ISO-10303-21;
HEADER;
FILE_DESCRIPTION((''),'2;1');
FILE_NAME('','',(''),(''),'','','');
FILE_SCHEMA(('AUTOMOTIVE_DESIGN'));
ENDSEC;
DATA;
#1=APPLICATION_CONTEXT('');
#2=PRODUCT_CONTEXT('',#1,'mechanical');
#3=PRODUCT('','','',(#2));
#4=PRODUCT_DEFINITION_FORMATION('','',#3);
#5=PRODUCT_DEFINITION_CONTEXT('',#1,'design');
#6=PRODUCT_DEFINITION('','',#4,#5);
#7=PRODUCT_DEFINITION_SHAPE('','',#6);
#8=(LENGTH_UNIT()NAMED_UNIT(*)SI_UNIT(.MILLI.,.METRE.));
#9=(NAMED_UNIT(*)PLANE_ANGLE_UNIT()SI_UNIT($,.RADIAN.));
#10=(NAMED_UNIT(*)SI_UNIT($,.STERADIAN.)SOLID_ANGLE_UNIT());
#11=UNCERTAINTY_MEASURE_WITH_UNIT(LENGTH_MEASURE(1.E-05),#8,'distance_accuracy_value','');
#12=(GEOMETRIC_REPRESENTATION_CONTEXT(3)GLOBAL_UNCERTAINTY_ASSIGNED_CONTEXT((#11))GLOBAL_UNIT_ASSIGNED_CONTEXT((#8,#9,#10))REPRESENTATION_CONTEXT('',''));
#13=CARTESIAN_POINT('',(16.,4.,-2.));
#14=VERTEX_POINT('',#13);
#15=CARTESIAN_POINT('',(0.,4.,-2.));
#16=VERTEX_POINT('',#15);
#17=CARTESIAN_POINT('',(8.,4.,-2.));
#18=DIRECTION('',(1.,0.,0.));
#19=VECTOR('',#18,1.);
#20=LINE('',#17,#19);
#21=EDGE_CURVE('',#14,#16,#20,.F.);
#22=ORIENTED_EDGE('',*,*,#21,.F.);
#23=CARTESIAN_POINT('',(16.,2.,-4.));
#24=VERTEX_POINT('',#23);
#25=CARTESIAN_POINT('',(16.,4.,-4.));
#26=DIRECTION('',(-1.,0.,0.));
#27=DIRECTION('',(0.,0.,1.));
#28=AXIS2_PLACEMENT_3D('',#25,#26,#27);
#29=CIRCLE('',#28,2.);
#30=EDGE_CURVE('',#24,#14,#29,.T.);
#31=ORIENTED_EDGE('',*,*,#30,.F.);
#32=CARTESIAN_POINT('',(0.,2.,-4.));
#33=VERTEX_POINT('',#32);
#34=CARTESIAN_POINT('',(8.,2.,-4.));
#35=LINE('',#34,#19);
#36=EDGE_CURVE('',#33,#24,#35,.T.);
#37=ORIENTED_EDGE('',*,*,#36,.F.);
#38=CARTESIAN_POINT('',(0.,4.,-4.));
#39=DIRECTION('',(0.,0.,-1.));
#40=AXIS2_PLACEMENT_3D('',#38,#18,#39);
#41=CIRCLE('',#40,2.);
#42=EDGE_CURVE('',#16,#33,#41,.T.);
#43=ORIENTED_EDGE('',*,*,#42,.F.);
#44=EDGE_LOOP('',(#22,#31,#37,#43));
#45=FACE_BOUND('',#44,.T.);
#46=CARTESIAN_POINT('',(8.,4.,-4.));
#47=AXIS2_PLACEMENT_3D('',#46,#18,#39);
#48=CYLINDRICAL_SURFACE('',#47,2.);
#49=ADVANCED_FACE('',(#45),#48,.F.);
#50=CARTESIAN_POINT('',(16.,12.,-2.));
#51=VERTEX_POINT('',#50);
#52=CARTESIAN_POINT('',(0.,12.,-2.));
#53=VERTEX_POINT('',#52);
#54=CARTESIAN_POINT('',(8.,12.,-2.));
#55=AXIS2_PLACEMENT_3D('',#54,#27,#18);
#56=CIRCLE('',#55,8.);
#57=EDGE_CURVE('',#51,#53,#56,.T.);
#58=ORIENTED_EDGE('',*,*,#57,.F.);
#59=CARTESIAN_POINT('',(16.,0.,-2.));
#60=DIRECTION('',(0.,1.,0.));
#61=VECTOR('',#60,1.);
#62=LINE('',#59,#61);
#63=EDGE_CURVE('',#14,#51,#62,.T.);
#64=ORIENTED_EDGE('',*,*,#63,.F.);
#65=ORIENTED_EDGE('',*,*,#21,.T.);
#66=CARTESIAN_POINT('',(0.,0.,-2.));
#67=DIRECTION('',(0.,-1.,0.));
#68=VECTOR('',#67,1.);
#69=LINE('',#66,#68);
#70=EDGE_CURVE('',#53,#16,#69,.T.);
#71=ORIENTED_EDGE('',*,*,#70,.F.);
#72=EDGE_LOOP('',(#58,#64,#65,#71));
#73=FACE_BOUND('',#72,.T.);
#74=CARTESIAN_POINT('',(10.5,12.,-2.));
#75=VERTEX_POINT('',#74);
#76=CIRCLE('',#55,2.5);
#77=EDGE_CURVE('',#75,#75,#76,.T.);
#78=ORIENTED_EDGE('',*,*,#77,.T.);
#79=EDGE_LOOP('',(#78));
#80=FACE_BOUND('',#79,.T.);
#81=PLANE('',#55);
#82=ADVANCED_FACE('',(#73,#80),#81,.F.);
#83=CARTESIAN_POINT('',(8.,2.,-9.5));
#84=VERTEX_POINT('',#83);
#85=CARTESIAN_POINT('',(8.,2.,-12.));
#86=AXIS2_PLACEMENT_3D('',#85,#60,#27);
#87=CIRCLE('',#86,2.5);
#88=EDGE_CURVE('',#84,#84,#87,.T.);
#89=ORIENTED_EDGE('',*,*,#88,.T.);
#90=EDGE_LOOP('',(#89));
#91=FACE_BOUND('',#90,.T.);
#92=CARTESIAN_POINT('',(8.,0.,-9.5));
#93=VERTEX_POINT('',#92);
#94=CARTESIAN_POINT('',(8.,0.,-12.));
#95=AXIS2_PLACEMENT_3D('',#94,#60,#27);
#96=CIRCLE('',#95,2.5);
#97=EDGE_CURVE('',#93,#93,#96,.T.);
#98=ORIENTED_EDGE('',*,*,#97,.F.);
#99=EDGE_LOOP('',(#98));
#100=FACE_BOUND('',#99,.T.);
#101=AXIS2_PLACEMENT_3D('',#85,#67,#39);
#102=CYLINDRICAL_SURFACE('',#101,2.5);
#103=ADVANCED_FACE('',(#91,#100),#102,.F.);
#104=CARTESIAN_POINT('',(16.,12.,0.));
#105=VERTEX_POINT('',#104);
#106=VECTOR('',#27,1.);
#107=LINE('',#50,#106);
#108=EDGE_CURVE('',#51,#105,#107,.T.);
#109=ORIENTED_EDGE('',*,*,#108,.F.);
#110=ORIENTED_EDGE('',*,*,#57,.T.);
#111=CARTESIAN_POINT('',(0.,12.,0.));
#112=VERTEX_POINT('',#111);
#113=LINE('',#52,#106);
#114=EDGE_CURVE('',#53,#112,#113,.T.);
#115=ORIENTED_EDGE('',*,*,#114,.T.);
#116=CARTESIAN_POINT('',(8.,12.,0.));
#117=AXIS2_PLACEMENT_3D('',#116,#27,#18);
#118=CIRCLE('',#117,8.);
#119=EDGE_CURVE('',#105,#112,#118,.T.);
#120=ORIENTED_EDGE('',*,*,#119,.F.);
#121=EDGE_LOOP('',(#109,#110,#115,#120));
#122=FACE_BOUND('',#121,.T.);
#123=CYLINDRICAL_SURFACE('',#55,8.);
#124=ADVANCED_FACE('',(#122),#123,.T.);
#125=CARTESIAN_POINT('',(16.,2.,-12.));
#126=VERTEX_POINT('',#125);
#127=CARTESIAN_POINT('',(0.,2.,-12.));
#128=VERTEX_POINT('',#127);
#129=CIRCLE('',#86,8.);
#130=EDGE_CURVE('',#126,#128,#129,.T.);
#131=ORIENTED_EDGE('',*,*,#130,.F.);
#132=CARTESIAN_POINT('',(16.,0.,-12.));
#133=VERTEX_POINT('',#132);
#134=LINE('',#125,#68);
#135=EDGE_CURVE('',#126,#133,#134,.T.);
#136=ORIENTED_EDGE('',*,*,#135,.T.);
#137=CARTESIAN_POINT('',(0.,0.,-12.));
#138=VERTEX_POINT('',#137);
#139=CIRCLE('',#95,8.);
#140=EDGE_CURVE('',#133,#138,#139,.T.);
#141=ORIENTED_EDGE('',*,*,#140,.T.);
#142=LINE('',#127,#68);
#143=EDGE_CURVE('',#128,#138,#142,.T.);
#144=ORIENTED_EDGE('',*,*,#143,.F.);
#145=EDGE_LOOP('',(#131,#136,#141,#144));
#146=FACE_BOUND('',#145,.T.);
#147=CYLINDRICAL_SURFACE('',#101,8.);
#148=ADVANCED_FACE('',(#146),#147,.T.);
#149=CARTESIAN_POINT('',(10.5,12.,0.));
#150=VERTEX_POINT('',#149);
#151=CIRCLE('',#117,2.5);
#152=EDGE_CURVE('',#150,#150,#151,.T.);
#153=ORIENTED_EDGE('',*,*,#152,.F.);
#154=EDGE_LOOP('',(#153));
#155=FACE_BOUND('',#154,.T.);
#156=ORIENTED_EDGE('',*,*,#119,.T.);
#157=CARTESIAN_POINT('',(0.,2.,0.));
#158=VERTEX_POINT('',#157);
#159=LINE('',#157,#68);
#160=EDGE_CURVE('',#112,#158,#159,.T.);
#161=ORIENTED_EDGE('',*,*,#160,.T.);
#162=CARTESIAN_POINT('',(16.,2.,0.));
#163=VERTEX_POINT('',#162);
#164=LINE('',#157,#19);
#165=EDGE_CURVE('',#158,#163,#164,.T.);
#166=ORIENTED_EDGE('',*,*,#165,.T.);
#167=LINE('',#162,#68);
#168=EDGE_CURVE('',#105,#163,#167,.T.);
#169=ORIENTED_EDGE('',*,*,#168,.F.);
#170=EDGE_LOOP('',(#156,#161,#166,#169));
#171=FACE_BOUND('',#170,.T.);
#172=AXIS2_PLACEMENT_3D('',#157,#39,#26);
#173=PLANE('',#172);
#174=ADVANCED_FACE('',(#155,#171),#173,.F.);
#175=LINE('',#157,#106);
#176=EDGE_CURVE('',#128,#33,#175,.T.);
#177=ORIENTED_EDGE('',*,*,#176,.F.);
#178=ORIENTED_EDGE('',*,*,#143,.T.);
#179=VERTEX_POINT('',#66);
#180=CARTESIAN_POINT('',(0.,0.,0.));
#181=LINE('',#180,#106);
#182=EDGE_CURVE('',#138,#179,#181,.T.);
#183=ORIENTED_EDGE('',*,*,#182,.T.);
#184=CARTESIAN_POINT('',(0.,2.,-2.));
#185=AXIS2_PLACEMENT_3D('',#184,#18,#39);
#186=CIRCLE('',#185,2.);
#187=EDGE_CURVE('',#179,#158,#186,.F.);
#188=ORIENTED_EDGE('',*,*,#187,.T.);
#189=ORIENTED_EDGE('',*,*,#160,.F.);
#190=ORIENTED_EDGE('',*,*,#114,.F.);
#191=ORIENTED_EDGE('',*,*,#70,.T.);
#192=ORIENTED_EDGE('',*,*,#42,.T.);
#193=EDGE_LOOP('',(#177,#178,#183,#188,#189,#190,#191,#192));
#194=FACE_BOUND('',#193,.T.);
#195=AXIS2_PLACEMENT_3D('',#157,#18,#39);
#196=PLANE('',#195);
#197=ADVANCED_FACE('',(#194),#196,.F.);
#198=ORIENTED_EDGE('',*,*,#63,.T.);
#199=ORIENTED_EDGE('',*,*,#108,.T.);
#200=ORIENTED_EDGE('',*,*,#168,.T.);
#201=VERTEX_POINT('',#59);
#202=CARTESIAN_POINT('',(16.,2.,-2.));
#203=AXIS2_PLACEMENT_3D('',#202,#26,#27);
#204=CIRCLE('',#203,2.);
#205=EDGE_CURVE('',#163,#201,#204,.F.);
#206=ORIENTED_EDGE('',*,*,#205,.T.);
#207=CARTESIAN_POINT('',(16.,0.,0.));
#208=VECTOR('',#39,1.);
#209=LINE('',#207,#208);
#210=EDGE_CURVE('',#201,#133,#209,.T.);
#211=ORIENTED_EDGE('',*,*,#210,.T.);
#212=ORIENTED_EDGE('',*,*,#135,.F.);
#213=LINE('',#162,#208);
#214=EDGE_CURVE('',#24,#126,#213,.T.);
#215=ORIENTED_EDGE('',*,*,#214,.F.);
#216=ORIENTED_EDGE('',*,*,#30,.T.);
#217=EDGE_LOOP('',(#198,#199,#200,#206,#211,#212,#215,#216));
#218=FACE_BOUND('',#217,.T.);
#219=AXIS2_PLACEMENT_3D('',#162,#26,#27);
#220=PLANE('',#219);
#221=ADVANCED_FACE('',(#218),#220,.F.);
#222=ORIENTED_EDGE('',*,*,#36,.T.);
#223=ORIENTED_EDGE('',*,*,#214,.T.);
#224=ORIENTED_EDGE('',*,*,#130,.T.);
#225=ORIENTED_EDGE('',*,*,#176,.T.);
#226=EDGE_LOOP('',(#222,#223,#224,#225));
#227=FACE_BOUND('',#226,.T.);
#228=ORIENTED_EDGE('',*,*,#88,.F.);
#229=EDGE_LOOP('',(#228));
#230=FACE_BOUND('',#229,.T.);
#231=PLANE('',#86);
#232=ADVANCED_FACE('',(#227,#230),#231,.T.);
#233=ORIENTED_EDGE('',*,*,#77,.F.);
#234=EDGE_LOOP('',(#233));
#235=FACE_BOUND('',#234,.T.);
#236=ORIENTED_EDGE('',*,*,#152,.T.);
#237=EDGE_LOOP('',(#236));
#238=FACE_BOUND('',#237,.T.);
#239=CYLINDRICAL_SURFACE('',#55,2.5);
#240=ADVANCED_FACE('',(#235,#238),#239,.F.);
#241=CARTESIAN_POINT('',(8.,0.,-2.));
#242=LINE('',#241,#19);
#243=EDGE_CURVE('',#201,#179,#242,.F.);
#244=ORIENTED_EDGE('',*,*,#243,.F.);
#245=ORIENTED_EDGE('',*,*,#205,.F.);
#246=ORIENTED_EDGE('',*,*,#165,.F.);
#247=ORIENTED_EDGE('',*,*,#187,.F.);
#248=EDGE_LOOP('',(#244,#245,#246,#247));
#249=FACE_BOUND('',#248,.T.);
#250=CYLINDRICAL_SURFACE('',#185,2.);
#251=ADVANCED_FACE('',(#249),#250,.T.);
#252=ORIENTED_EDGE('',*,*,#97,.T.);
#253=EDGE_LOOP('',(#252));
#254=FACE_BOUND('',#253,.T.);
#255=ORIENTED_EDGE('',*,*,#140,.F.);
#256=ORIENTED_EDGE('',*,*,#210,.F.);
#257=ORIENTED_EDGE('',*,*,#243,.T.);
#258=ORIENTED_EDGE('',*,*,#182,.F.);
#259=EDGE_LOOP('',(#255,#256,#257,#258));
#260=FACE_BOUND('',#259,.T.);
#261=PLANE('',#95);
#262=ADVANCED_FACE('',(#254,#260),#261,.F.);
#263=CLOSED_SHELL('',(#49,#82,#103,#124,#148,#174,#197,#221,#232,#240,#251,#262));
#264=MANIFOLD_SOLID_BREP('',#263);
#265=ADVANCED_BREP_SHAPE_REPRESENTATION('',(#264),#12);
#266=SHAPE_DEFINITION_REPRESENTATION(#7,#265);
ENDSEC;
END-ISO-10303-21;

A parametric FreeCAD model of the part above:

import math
import FreeCAD as App
import Part
import Sketcher
from FreeCAD import Vector
Q = App.Units.Quantity


def edges_at(feature, points):
    """Names of the edges that pass closest to the given points."""
    edges = feature.Shape.Edges
    near = lambda p: min(range(len(edges)), key=lambda i: edges[i].distToShape(Part.Vertex(*p))[0])
    return sorted({f"Edge{near(p) + 1}" for p in points})

doc = App.newDocument("Part")
params = doc.addObject("Spreadsheet::Sheet", "Params")
for row, (alias, value) in enumerate([
    ("sketch1_diameter", "5 mm"),
    ("sketch1_radius", "8 mm"),
    ("sketch1_height", "12 mm"),
    ("pad1_length", "2 mm"),
    ("sketch2_diameter", "5 mm"),
    ("sketch2_radius", "8 mm"),
    ("sketch2_height", "12 mm"),
    ("pad2_length", "2 mm"),
    ("fillet_radius", "2 mm"),
], start=1):
    params.set(f"A{row}", alias)
    params.set(f"B{row}", "=" + value)
    params.setAlias(f"B{row}", alias)

body = doc.addObject("PartDesign::Body", "Body")

sketch1 = body.newObject("Sketcher::SketchObject", "Sketch")
sketch1.AttachmentSupport = (doc.getObject("XZ_Plane"), [""])
sketch1.MapMode = "FlatFace"
sketch1.addGeometry(Part.LineSegment(Vector(0, 0, 0), Vector(16, 0, 0)), False)
sketch1.addGeometry(Part.LineSegment(Vector(16, 0, 0), Vector(16, -12, 0)), False)
sketch1.addGeometry(Part.ArcOfCircle(Part.Circle(Vector(8, -12, 0), Vector(0, 0, 1), 8), math.radians(180), math.radians(360)), False)
sketch1.addGeometry(Part.LineSegment(Vector(0, -12, 0), Vector(0, 0, 0)), False)
sketch1.addGeometry(Part.Circle(Vector(8, -12, 0), Vector(0, 0, 1), 2.5), False)
sketch1.addConstraint(Sketcher.Constraint("Coincident", 0, 2, 1, 1))
sketch1.addConstraint(Sketcher.Constraint("Tangent", 1, 2, 2, 2))
sketch1.addConstraint(Sketcher.Constraint("Tangent", 2, 1, 3, 1))
sketch1.addConstraint(Sketcher.Constraint("Coincident", 3, 2, 0, 1))
sketch1.addConstraint(Sketcher.Constraint("Horizontal", 0))
sketch1.addConstraint(Sketcher.Constraint("Vertical", 1))
sketch1.addConstraint(Sketcher.Constraint("Vertical", 3))
sketch1.addConstraint(Sketcher.Constraint("Coincident", 3, 2, -1, 1))
sketch1.addConstraint(Sketcher.Constraint("Coincident", 4, 3, 2, 3))
sketch1.addConstraint(Sketcher.Constraint("Diameter", 4, Q("5 mm")))
sketch1.addConstraint(Sketcher.Constraint("Radius", 2, Q("8 mm")))
sketch1.addConstraint(Sketcher.Constraint("DistanceY", 1, 2, 1, 1, Q("12 mm")))
sketch1.setExpression("Constraints[9]", "Params.sketch1_diameter")
sketch1.setExpression("Constraints[10]", "Params.sketch1_radius")
sketch1.setExpression("Constraints[11]", "Params.sketch1_height")
pad1 = body.newObject("PartDesign::Pad", "Pad")
pad1.Profile = sketch1
pad1.setExpression("Length", "Params.pad1_length")
pad1.Reversed = True

sketch2 = body.newObject("Sketcher::SketchObject", "Sketch001")
sketch2.AttachmentSupport = (doc.getObject("XY_Plane"), [""])
sketch2.MapMode = "FlatFace"
sketch2.addGeometry(Part.LineSegment(Vector(0, 0, 0), Vector(16, 0, 0)), False)
sketch2.addGeometry(Part.LineSegment(Vector(16, 0, 0), Vector(16, 12, 0)), False)
sketch2.addGeometry(Part.ArcOfCircle(Part.Circle(Vector(8, 12, 0), Vector(0, 0, 1), 8), math.radians(0), math.radians(180)), False)
sketch2.addGeometry(Part.LineSegment(Vector(0, 12, 0), Vector(0, 0, 0)), False)
sketch2.addGeometry(Part.Circle(Vector(8, 12, 0), Vector(0, 0, 1), 2.5), False)
sketch2.addConstraint(Sketcher.Constraint("Coincident", 0, 2, 1, 1))
sketch2.addConstraint(Sketcher.Constraint("Tangent", 1, 2, 2, 1))
sketch2.addConstraint(Sketcher.Constraint("Tangent", 2, 2, 3, 1))
sketch2.addConstraint(Sketcher.Constraint("Coincident", 3, 2, 0, 1))
sketch2.addConstraint(Sketcher.Constraint("Horizontal", 0))
sketch2.addConstraint(Sketcher.Constraint("Vertical", 1))
sketch2.addConstraint(Sketcher.Constraint("Vertical", 3))
sketch2.addConstraint(Sketcher.Constraint("Coincident", 3, 2, -1, 1))
sketch2.addConstraint(Sketcher.Constraint("Coincident", 4, 3, 2, 3))
sketch2.addConstraint(Sketcher.Constraint("Diameter", 4, Q("5 mm")))
sketch2.addConstraint(Sketcher.Constraint("Radius", 2, Q("8 mm")))
sketch2.addConstraint(Sketcher.Constraint("DistanceY", 1, 1, 1, 2, Q("12 mm")))
sketch2.setExpression("Constraints[9]", "Params.sketch2_diameter")
sketch2.setExpression("Constraints[10]", "Params.sketch2_radius")
sketch2.setExpression("Constraints[11]", "Params.sketch2_height")
pad2 = body.newObject("PartDesign::Pad", "Pad001")
pad2.Profile = sketch2
pad2.setExpression("Length", "Params.pad2_length")
pad2.Reversed = True
doc.recompute()

fillet = body.newObject("PartDesign::Fillet", "Fillet")
fillet.Base = (pad2, edges_at(pad2, [(8, 2, -2), (8, 0, 0)]))
fillet.setExpression("Radius", "Params.fillet_radius")

doc.recompute()
